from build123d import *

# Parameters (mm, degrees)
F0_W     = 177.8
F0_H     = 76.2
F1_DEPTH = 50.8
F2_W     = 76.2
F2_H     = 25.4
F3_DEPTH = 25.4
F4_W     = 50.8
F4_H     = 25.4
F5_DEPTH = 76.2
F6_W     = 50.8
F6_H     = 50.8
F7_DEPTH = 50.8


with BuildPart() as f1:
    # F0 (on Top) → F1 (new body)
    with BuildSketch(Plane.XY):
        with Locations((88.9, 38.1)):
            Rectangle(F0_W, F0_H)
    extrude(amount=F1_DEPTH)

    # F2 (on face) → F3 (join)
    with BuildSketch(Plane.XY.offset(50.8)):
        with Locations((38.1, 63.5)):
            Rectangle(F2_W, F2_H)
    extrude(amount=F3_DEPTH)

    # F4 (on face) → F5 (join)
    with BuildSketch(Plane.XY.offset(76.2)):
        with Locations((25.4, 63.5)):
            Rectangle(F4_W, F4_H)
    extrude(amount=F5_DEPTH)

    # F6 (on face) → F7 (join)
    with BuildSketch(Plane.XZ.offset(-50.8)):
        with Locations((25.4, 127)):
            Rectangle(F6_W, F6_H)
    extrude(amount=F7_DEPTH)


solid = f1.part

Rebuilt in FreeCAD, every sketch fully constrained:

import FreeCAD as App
import Part
import Sketcher
Q = App.Units.Quantity


def add_polygon(sketch, points):
    """Adds a closed chain of lines whose ends are joined by coincident constraints."""
    first, n = sketch.GeometryCount, len(points)
    for a, b in zip(points, points[1:] + points[:1]):
        sketch.addGeometry(Part.LineSegment(App.Vector(*a, 0), App.Vector(*b, 0)), False)
    for i in range(n):
        sketch.addConstraint(Sketcher.Constraint("Coincident", first + i, 2, first + (i + 1) % n, 1))

doc = App.newDocument("Part")
body = doc.addObject("PartDesign::Body", "Body")

# Sketch on XY plane
sketch1 = body.newObject("Sketcher::SketchObject", "Sketch")
sketch1.AttachmentSupport = (doc.getObject("XY_Plane"), [""])
sketch1.MapMode = "FlatFace"
add_polygon(sketch1, [(0, 76), (0, 0), (178, 0), (178, 76)])  # lines 0-3
sketch1.addConstraint([
    Sketcher.Constraint("Vertical", 0),
    Sketcher.Constraint("Horizontal", 1),
    Sketcher.Constraint("Vertical", 2),
    Sketcher.Constraint("Horizontal", 3),
    Sketcher.Constraint("Coincident", 0, 2, -1, 1),
    Sketcher.Constraint("DistanceX", 1, 1, 1, 2, Q("7 in")),
    Sketcher.Constraint("DistanceY", 0, 2, 0, 1, Q("3 in")),
])
pad1 = body.newObject("PartDesign::Pad", "Pad")
pad1.Profile = sketch1
pad1.Length = Q("2 in")

# Sketch on XY plane
sketch2 = body.newObject("Sketcher::SketchObject", "Sketch001")
sketch2.AttachmentSupport = (doc.getObject("XY_Plane"), [""])
sketch2.MapMode = "FlatFace"
sketch2.AttachmentOffset = App.Placement(App.Vector(0, 0, 2 * 25.4), App.Rotation())
add_polygon(sketch2, [(0, 76), (0, 51), (76, 51), (76, 76)])  # lines 0-3
sketch2.addConstraint([
    Sketcher.Constraint("Vertical", 0),
    Sketcher.Constraint("Horizontal", 1),
    Sketcher.Constraint("Vertical", 2),
    Sketcher.Constraint("Horizontal", 3),
    Sketcher.Constraint("PointOnObject", 0, 2, -2),
    Sketcher.Constraint("DistanceX", 1, 1, 1, 2, Q("3 in")),
    Sketcher.Constraint("DistanceY", 0, 2, 0, 1, Q("1 in")),
    Sketcher.Constraint("DistanceY", -1, 1, 0, 2, Q("2 in")),
])
pad2 = body.newObject("PartDesign::Pad", "Pad001")
pad2.Profile = sketch2
pad2.Length = Q("1 in")

# Sketch on XY plane
sketch3 = body.newObject("Sketcher::SketchObject", "Sketch002")
sketch3.AttachmentSupport = (doc.getObject("XY_Plane"), [""])
sketch3.MapMode = "FlatFace"
sketch3.AttachmentOffset = App.Placement(App.Vector(0, 0, 3 * 25.4), App.Rotation())
add_polygon(sketch3, [(0, 76), (0, 51), (51, 51), (51, 76)])  # lines 0-3
sketch3.addConstraint([
    Sketcher.Constraint("Vertical", 0),
    Sketcher.Constraint("Horizontal", 1),
    Sketcher.Constraint("Vertical", 2),
    Sketcher.Constraint("Horizontal", 3),
    Sketcher.Constraint("PointOnObject", 0, 2, -2),
    Sketcher.Constraint("DistanceX", 1, 1, 1, 2, Q("2 in")),
    Sketcher.Constraint("DistanceY", 0, 2, 0, 1, Q("1 in")),
    Sketcher.Constraint("DistanceY", -1, 1, 0, 2, Q("2 in")),
])
pad3 = body.newObject("PartDesign::Pad", "Pad002")
pad3.Profile = sketch3
pad3.Length = Q("3 in")

# Sketch on XZ plane
sketch4 = body.newObject("Sketcher::SketchObject", "Sketch003")
sketch4.AttachmentSupport = (doc.getObject("XZ_Plane"), [""])
sketch4.MapMode = "FlatFace"
sketch4.AttachmentOffset = App.Placement(App.Vector(0, 0, -2 * 25.4), App.Rotation())
add_polygon(sketch4, [(0, 152), (0, 102), (51, 102), (51, 152)])  # lines 0-3
sketch4.addConstraint([
    Sketcher.Constraint("Vertical", 0),
    Sketcher.Constraint("Horizontal", 1),
    Sketcher.Constraint("Vertical", 2),
    Sketcher.Constraint("Horizontal", 3),
    Sketcher.Constraint("PointOnObject", 0, 2, -2),
    Sketcher.Constraint("Equal", 3, 0),
    Sketcher.Constraint("DistanceX", 1, 1, 1, 2, Q("2 in")),
    Sketcher.Constraint("DistanceY", -1, 1, 0, 2, Q("4 in")),
])
pad4 = body.newObject("PartDesign::Pad", "Pad003")
pad4.Profile = sketch4
pad4.Length = Q("2 in")

doc.recompute()
